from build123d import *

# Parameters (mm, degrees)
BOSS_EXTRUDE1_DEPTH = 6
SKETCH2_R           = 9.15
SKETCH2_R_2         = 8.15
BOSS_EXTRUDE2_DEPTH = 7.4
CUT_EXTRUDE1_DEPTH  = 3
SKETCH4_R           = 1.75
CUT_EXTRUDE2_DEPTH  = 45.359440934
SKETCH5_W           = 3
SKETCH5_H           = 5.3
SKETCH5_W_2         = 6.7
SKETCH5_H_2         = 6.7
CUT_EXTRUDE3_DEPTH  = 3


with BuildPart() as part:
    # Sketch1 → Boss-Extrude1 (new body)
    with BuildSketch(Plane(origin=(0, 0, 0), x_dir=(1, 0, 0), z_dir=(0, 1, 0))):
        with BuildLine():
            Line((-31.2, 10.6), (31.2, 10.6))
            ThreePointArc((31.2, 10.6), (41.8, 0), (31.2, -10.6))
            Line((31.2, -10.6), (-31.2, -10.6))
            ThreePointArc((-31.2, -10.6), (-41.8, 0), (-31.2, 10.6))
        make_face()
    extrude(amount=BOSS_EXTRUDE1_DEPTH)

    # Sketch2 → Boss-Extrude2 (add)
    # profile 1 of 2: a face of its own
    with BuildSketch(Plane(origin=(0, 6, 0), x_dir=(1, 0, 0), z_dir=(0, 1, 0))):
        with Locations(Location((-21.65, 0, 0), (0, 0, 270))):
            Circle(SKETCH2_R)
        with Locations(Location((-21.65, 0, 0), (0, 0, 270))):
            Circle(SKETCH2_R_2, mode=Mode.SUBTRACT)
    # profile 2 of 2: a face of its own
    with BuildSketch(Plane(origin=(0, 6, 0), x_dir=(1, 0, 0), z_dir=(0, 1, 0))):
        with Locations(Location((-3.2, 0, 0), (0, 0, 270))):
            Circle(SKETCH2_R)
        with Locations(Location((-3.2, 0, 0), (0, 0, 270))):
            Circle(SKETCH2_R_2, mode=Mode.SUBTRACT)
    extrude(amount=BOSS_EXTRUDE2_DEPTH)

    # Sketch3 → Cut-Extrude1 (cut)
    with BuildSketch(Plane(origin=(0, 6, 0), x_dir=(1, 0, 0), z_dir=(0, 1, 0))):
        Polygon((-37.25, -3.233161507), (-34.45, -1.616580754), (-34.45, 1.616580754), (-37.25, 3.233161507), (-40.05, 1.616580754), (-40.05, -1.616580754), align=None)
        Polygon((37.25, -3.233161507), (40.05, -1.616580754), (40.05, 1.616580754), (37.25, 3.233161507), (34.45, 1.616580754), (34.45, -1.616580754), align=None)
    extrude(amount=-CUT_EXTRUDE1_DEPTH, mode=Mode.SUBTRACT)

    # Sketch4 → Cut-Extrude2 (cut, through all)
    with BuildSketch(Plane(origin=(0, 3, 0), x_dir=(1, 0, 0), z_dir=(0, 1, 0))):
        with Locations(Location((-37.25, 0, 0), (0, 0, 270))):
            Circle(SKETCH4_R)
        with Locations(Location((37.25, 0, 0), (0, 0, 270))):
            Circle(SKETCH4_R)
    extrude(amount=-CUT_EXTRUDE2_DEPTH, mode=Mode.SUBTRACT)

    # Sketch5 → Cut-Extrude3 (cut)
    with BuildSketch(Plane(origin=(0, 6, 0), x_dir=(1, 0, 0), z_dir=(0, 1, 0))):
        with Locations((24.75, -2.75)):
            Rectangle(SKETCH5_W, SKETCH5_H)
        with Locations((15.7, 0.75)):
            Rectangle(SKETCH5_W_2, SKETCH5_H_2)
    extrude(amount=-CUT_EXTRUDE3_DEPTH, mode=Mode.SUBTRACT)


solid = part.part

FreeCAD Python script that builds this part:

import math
import FreeCAD as App
import Part
import Sketcher
Q = App.Units.Quantity


def add_polygon(sketch, points):
    """Adds a closed chain of lines whose ends are joined by coincident constraints."""
    first, n = sketch.GeometryCount, len(points)
    for a, b in zip(points, points[1:] + points[:1]):
        sketch.addGeometry(Part.LineSegment(App.Vector(*a, 0), App.Vector(*b, 0)), False)
    for i in range(n):
        sketch.addConstraint(Sketcher.Constraint("Coincident", first + i, 2, first + (i + 1) % n, 1))

doc = App.newDocument("Part")
body = doc.addObject("PartDesign::Body", "Body")

# Sketch on XZ plane
sketch1 = body.newObject("Sketcher::SketchObject", "Sketch")
sketch1.AttachmentSupport = (doc.getObject("XZ_Plane"), [""])
sketch1.MapMode = "FlatFace"
sketch1.addGeometry(Part.LineSegment(App.Vector(31, -11, 0), App.Vector(-31, -11, 0)), False)
sketch1.addGeometry(Part.ArcOfCircle(Part.Circle(App.Vector(-31, 0, 0), App.Vector(0, 0, 1), 11), math.radians(90), math.radians(270)), False)
sketch1.addGeometry(Part.LineSegment(App.Vector(-31, 11, 0), App.Vector(31, 11, 0)), False)
sketch1.addGeometry(Part.ArcOfCircle(Part.Circle(App.Vector(31, 0, 0), App.Vector(0, 0, 1), 11), math.radians(-90), math.radians(90)), False)
sketch1.addConstraint(Sketcher.Constraint("Tangent", 0, 2, 1, 2))
sketch1.addConstraint(Sketcher.Constraint("Tangent", 1, 1, 2, 1))
sketch1.addConstraint(Sketcher.Constraint("Tangent", 2, 2, 3, 2))
sketch1.addConstraint(Sketcher.Constraint("Tangent", 3, 1, 0, 1))
sketch1.addConstraint(Sketcher.Constraint("Horizontal", 0))
sketch1.addConstraint(Sketcher.Constraint("Horizontal", 2))
sketch1.addConstraint(Sketcher.Constraint("Symmetric", 1, 3, 3, 3, -1, 1))
sketch1.addConstraint(Sketcher.Constraint("Radius", 1, Q("10.6 mm")))
sketch1.addConstraint(Sketcher.Constraint("DistanceX", 0, 2, 0, 1, Q("62.4 mm")))
pad1 = body.newObject("PartDesign::Pad", "Pad")
pad1.Profile = sketch1
pad1.Length = 6
pad1.Reversed = True

# Sketch on XZ plane
sketch2 = body.newObject("Sketcher::SketchObject", "Sketch001")
sketch2.AttachmentSupport = (doc.getObject("XZ_Plane"), [""])
sketch2.MapMode = "FlatFace"
sketch2.AttachmentOffset = App.Placement(App.Vector(0, 0, -6), App.Rotation())
sketch2.addGeometry(Part.Circle(App.Vector(-22, 0, 0), App.Vector(0, 0, 1), 9), False)
sketch2.addGeometry(Part.Circle(App.Vector(-22, 0, 0), App.Vector(0, 0, 1), 8), False)
sketch2.addGeometry(Part.Circle(App.Vector(-3, 0, 0), App.Vector(0, 0, 1), 9), False)
sketch2.addGeometry(Part.Circle(App.Vector(-3, 0, 0), App.Vector(0, 0, 1), 8), False)
sketch2.addConstraint(Sketcher.Constraint("Coincident", 1, 3, 0, 3))
sketch2.addConstraint(Sketcher.Constraint("Coincident", 3, 3, 2, 3))
sketch2.addConstraint(Sketcher.Constraint("Equal", 0, 2))
sketch2.addConstraint(Sketcher.Constraint("Equal", 1, 3))
sketch2.addConstraint(Sketcher.Constraint("PointOnObject", 0, 3, -1))
sketch2.addConstraint(Sketcher.Constraint("PointOnObject", 2, 3, -1))
sketch2.addConstraint(Sketcher.Constraint("Diameter", 0, Q("18.3 mm")))
sketch2.addConstraint(Sketcher.Constraint("Diameter", 1, Q("16.3 mm")))
sketch2.addConstraint(Sketcher.Constraint("DistanceX", 2, 3, -1, 1, Q("3.2 mm")))
sketch2.addConstraint(Sketcher.Constraint("DistanceX", 0, 3, -1, 1, Q("21.65 mm")))
pad2 = body.newObject("PartDesign::Pad", "Pad001")
pad2.Profile = sketch2
pad2.Length = 7.4
pad2.Reversed = True

# Sketch on XZ plane
sketch3 = body.newObject("Sketcher::SketchObject", "Sketch002")
sketch3.AttachmentSupport = (doc.getObject("XZ_Plane"), [""])
sketch3.MapMode = "FlatFace"
sketch3.AttachmentOffset = App.Placement(App.Vector(0, 0, -6), App.Rotation())
add_polygon(sketch3, [(-37.2, 3.2), (-34.5, 1.6), (-34.5, -1.6), (-37.2, -3.2), (-40, -1.6), (-40, 1.6)])  # lines 0-5
add_polygon(sketch3, [(37.2, 3.2), (40, 1.6), (40, -1.6), (37.2, -3.2), (34.5, -1.6), (34.5, 1.6)])  # lines 6-11
sketch3.addConstraint(Sketcher.Constraint("Vertical", 1))
sketch3.addConstraint(Sketcher.Constraint("Vertical", 4))
sketch3.addConstraint(Sketcher.Constraint("Vertical", 7))
sketch3.addConstraint(Sketcher.Constraint("Vertical", 10))
sketch3.addConstraint(Sketcher.Constraint("Symmetric", 3, 2, 6, 2, -1, 1))
sketch3.addConstraint(Sketcher.Constraint("Symmetric", 5, 2, 8, 2, -1, 1))
sketch3.addConstraint(Sketcher.Constraint("Symmetric", 0, 2, 9, 2, -1, 1))
sketch3.addConstraint(Sketcher.Constraint("Symmetric", 2, 2, 11, 2, -1, 1))
sketch3.addConstraint(Sketcher.Constraint("Symmetric", 2, 2, 8, 2, -2))
sketch3.addConstraint(Sketcher.Constraint("Parallel", 0, 3))
sketch3.addConstraint(Sketcher.Constraint("Parallel", 2, 5))
sketch3.addConstraint(Sketcher.Constraint("Parallel", 5, 8))
sketch3.addConstraint(Sketcher.Constraint("Parallel", 8, 11))
sketch3.addConstraint(Sketcher.Constraint("Horizontal", 1, 2, 3, 2))
sketch3.addConstraint(Sketcher.Constraint("Horizontal", 0, 2, 4, 2))
sketch3.addConstraint(Sketcher.Constraint("Angle", 0, Q("-30 deg")))
sketch3.addConstraint(Sketcher.Constraint("DistanceX", 2, 2, 1, 2, Q("2.8 mm")))
sketch3.addConstraint(Sketcher.Constraint("DistanceX", 0, 2, 6, 2, Q("74.5 mm")))
sketch3.addConstraint(Sketcher.Constraint("DistanceY", 1, 2, 1, 1, Q("3.233162 mm")))
pocket1 = body.newObject("PartDesign::Pocket", "Pocket")
pocket1.Profile = sketch3
pocket1.Length = 3
pocket1.Reversed = True

# Sketch on XZ plane
sketch4 = body.newObject("Sketcher::SketchObject", "Sketch003")
sketch4.AttachmentSupport = (doc.getObject("XZ_Plane"), [""])
sketch4.MapMode = "FlatFace"
sketch4.AttachmentOffset = App.Placement(App.Vector(0, 0, -3), App.Rotation())
sketch4.addGeometry(Part.Circle(App.Vector(-37.2, 0, 0), App.Vector(0, 0, 1), 1.8), False)
sketch4.addGeometry(Part.Circle(App.Vector(37.2, 0, 0), App.Vector(0, 0, 1), 1.8), False)
sketch4.addConstraint(Sketcher.Constraint("Equal", 0, 1))
sketch4.addConstraint(Sketcher.Constraint("Symmetric", 0, 3, 1, 3, -1, 1))
sketch4.addConstraint(Sketcher.Constraint("PointOnObject", 0, 3, -1))
sketch4.addConstraint(Sketcher.Constraint("Diameter", 0, Q("3.5 mm")))
sketch4.addConstraint(Sketcher.Constraint("DistanceX", 0, 3, 1, 3, Q("74.5 mm")))
pocket2 = body.newObject("PartDesign::Pocket", "Pocket001")
pocket2.Profile = sketch4
pocket2.Type = "ThroughAll"
pocket2.Reversed = True

# Sketch on XZ plane
sketch5 = body.newObject("Sketcher::SketchObject", "Sketch004")
sketch5.AttachmentSupport = (doc.getObject("XZ_Plane"), [""])
sketch5.MapMode = "FlatFace"
sketch5.AttachmentOffset = App.Placement(App.Vector(0, 0, -6), App.Rotation())
add_polygon(sketch5, [(23.2, 0.1), (23.2, 5.4), (26.2, 5.4), (26.2, 0.1)])  # lines 0-3
add_polygon(sketch5, [(12.3, -4.1), (12.3, 2.6), (19.1, 2.6), (19.1, -4.1)])  # lines 4-7
sketch5.addConstraint(Sketcher.Constraint("Vertical", 0))
sketch5.addConstraint(Sketcher.Constraint("Horizontal", 1))
sketch5.addConstraint(Sketcher.Constraint("Vertical", 2))
sketch5.addConstraint(Sketcher.Constraint("Horizontal", 3))
sketch5.addConstraint(Sketcher.Constraint("Vertical", 4))
sketch5.addConstraint(Sketcher.Constraint("Horizontal", 5))
sketch5.addConstraint(Sketcher.Constraint("Vertical", 6))
sketch5.addConstraint(Sketcher.Constraint("Horizontal", 7))
sketch5.addConstraint(Sketcher.Constraint("Equal", 7, 4))
sketch5.addConstraint(Sketcher.Constraint("DistanceX", 1, 1, 1, 2, Q("3 mm")))
sketch5.addConstraint(Sketcher.Constraint("DistanceX", 5, 1, 5, 2, Q("6.7 mm")))
sketch5.addConstraint(Sketcher.Constraint("DistanceY", 0, 1, 0, 2, Q("5.3 mm")))
sketch5.addConstraint(Sketcher.Constraint("DistanceY", -1, 1, 0, 2, Q("5.4 mm")))
sketch5.addConstraint(Sketcher.Constraint("DistanceY", -1, 1, 4, 2, Q("2.6 mm")))
sketch5.addConstraint(Sketcher.Constraint("DistanceX", 4, 2, 3, 2, Q("10.9 mm")))
sketch5.addConstraint(Sketcher.Constraint("DistanceX", -1, 1, 0, 2, Q("23.25 mm")))
pocket3 = body.newObject("PartDesign::Pocket", "Pocket002")
pocket3.Profile = sketch5
pocket3.Length = 3
pocket3.Reversed = True

doc.recompute()
